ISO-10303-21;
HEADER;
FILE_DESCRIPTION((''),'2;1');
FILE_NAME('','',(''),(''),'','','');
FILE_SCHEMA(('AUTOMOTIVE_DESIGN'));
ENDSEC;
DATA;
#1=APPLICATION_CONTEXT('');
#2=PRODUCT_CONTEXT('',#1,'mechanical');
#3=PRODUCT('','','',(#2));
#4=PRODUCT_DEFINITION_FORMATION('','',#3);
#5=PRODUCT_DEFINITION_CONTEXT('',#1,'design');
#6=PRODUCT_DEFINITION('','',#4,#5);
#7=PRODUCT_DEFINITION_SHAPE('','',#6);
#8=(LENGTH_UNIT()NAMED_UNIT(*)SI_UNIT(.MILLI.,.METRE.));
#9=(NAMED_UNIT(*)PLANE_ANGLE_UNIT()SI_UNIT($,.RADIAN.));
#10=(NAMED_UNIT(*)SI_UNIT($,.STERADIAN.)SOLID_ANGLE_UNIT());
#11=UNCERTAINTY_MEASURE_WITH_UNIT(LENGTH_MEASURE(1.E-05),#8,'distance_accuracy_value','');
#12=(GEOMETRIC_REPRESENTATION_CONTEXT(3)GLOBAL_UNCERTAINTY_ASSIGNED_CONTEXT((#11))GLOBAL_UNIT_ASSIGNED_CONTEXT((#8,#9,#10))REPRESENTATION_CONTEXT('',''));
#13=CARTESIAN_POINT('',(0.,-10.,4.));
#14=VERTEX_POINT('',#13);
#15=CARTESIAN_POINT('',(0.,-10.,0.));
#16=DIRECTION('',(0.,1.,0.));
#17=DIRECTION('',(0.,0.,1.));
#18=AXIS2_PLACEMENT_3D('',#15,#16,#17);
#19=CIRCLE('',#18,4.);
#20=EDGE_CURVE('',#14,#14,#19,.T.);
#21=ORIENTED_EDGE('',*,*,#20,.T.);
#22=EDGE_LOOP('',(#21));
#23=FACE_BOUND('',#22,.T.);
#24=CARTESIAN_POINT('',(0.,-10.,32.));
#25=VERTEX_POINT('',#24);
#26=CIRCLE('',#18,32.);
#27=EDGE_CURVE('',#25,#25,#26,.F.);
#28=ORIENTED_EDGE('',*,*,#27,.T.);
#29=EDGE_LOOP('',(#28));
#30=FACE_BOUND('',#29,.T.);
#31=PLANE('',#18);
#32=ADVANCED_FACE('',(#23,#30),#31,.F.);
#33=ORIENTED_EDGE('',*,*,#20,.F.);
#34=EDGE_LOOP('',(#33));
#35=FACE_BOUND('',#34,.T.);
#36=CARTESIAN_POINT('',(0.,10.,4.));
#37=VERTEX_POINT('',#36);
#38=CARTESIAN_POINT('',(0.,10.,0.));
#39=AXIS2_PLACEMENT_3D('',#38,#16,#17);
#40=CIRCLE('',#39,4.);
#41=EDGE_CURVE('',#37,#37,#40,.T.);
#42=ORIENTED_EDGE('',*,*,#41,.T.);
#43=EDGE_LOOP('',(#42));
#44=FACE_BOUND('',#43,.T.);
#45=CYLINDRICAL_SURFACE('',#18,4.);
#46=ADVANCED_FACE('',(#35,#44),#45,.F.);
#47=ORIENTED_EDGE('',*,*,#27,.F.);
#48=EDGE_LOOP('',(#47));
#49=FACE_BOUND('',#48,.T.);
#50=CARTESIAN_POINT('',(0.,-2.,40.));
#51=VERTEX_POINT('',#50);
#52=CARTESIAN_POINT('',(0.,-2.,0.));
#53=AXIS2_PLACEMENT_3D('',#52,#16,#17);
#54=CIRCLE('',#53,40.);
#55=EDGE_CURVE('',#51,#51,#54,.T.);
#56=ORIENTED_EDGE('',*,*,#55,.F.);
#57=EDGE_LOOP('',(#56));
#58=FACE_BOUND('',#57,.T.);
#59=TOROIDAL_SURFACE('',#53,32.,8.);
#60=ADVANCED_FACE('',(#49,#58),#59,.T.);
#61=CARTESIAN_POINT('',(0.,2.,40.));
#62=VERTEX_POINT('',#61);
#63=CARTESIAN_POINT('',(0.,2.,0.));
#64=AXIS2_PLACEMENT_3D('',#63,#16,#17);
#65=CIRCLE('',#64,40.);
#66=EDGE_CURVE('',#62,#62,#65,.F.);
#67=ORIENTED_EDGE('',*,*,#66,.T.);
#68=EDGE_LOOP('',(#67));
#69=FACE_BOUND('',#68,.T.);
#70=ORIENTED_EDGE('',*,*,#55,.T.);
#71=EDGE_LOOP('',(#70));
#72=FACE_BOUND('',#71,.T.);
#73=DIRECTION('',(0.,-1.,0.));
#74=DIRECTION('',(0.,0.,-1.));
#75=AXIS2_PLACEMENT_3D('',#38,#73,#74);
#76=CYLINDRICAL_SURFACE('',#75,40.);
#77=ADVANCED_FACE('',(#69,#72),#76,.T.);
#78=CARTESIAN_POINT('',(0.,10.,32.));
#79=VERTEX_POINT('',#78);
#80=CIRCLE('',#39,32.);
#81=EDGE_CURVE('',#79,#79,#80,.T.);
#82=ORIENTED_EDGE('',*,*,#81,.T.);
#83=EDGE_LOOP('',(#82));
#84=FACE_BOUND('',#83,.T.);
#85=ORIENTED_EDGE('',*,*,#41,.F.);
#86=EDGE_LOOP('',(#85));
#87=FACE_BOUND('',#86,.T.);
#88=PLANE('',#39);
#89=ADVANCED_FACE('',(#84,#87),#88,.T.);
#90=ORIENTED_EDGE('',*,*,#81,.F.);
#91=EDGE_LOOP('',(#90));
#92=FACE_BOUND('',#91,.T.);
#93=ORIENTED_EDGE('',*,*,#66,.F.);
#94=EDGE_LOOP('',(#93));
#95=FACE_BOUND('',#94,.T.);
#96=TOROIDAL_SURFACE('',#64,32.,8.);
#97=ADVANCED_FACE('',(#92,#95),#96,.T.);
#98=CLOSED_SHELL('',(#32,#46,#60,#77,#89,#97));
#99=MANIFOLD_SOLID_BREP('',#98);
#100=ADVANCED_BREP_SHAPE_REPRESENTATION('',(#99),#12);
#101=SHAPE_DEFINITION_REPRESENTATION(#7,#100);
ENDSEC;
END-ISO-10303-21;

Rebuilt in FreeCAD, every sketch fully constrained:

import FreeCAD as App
import Part
import Sketcher

V = App.Vector


def edges_at(feature, points):
    """Names of the edges that pass closest to the given points."""
    edges = feature.Shape.Edges
    near = lambda p: min(range(len(edges)), key=lambda i: edges[i].distToShape(Part.Vertex(*p))[0])
    return sorted({f"Edge{near(p) + 1}" for p in points})

doc = App.newDocument("Part")
body = doc.addObject("PartDesign::Body", "Body")

# Sketch on XZ plane
sketch1 = body.newObject("Sketcher::SketchObject", "Sketch")
sketch1.AttachmentSupport = (doc.getObject("XZ_Plane"), [""])
sketch1.MapMode = "FlatFace"
sketch1.addGeometry(Part.Circle(V(0, 0, 0), V(0, 0, 1), 40), False)
sketch1.addConstraint(Sketcher.Constraint("Coincident", 0, 3, -1, 1))
sketch1.addConstraint(Sketcher.Constraint("Diameter", 0, 80.0))
pad1 = body.newObject("PartDesign::Pad", "Pad")
pad1.Profile = sketch1
pad1.Length = 20
pad1.Midplane = True
doc.recompute()

fillet = body.newObject("PartDesign::Fillet", "Fillet")
fillet.Base = (pad1, edges_at(pad1, [(-40, -10, 0), (-40, 10, 0)]))
fillet.Radius = 8

# Sketch on XZ plane
sketch2 = body.newObject("Sketcher::SketchObject", "Sketch001")
sketch2.AttachmentSupport = (doc.getObject("XZ_Plane"), [""])
sketch2.MapMode = "FlatFace"
sketch2.addGeometry(Part.Circle(V(0, 0, 0), V(0, 0, 1), 4), False)
sketch2.addConstraint(Sketcher.Constraint("Coincident", 0, 3, -1, 1))
sketch2.addConstraint(Sketcher.Constraint("Diameter", 0, 8.0))
pocket1 = body.newObject("PartDesign::Pocket", "Pocket")
pocket1.Profile = sketch2
pocket1.Length = 20
pocket1.Midplane = True

doc.recompute()
